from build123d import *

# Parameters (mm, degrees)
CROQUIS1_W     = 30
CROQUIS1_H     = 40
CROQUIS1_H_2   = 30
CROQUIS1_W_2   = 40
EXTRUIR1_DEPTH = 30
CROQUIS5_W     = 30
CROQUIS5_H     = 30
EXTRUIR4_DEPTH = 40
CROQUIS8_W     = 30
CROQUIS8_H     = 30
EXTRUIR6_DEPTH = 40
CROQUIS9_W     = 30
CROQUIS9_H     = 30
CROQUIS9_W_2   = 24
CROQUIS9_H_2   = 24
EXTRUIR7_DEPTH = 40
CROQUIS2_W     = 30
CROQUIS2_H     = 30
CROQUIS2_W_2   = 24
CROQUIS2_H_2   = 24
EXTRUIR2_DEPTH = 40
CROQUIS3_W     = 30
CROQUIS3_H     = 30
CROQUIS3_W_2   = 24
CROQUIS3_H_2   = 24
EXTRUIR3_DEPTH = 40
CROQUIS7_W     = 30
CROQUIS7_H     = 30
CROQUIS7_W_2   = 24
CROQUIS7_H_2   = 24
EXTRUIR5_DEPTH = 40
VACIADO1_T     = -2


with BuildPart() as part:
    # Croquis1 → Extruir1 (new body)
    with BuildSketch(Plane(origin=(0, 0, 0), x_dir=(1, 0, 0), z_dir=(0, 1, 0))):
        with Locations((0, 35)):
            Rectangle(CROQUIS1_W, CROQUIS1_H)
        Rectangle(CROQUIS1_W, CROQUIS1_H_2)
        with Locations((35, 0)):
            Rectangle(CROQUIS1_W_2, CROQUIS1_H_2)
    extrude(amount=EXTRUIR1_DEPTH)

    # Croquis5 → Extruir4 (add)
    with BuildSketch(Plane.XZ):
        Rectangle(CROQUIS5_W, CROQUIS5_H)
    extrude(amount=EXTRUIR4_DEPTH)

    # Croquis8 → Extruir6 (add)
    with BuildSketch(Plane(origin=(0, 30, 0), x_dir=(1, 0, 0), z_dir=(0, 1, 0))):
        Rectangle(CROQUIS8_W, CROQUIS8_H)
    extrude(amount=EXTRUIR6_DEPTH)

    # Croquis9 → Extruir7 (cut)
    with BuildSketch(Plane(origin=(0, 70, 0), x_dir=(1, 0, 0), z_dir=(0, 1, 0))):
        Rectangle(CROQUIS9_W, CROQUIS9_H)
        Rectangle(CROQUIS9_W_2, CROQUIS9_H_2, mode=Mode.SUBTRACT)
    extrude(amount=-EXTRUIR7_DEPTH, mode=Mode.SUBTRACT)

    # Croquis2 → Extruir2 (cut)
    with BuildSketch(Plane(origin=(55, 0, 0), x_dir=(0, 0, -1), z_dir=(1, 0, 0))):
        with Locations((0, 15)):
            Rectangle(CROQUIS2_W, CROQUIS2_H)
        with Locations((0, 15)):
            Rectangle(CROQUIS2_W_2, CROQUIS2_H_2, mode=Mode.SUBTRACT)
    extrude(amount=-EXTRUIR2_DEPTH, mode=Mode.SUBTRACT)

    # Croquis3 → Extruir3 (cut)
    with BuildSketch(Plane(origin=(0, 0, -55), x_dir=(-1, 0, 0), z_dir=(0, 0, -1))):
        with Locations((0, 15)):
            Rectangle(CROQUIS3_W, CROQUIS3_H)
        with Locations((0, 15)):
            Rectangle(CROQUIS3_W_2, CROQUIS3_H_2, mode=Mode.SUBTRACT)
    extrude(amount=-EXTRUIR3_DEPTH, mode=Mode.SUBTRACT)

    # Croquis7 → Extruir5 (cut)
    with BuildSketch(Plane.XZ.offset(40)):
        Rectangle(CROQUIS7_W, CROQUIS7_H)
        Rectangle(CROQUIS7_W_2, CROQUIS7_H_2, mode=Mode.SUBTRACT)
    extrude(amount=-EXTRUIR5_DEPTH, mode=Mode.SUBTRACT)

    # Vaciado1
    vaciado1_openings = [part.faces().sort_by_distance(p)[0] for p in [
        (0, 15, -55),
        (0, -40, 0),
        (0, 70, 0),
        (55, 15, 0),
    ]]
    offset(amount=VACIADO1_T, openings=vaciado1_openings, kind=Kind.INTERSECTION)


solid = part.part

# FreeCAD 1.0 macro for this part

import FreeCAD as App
import Part
import Sketcher
from FreeCAD import Vector
Q = App.Units.Quantity


def faces_at(feature, points):
    """Names of the faces that lie closest to the given points."""
    faces = feature.Shape.Faces
    near = lambda p: min(range(len(faces)), key=lambda i: faces[i].distToShape(Part.Vertex(*p))[0])
    return sorted({f"Face{near(p) + 1}" for p in points})


def add_polygon(sketch, points):
    """Adds a closed chain of lines whose ends are joined by coincident constraints."""
    first, n = sketch.GeometryCount, len(points)
    for a, b in zip(points, points[1:] + points[:1]):
        sketch.addGeometry(Part.LineSegment(App.Vector(*a, 0), App.Vector(*b, 0)), False)
    for i in range(n):
        sketch.addConstraint(Sketcher.Constraint("Coincident", first + i, 2, first + (i + 1) % n, 1))

doc = App.newDocument("Part")
body = doc.addObject("PartDesign::Body", "Body")

sketch1 = body.newObject("Sketcher::SketchObject", "Sketch")
sketch1.AttachmentSupport = (doc.getObject("XZ_Plane"), [""])
sketch1.MapMode = "FlatFace"
add_polygon(sketch1, [(-15, -55), (-15, 15), (55, 15), (55, -15), (15, -15), (15, -55)])
sketch1.addConstraint([
    Sketcher.Constraint("Vertical", 0),
    Sketcher.Constraint("Horizontal", 1),
    Sketcher.Constraint("Vertical", 2),
    Sketcher.Constraint("Horizontal", 3),
    Sketcher.Constraint("Vertical", 4),
    Sketcher.Constraint("Horizontal", 5),
    Sketcher.Constraint("Symmetric", 0, 2, 3, 2, -1, 1),
    Sketcher.Constraint("Equal", 1, 0),
    Sketcher.Constraint("Equal", 5, 2),
    Sketcher.Constraint("DistanceX", 1, 1, 1, 2, Q("70 mm")),
    Sketcher.Constraint("DistanceX", 3, 2, 3, 1, Q("40 mm")),
])
pad1 = body.newObject("PartDesign::Pad", "Pad")
pad1.Profile = sketch1
pad1.Length = 30
pad1.Reversed = True

sketch2 = body.newObject("Sketcher::SketchObject", "Sketch001")
sketch2.AttachmentSupport = (doc.getObject("XZ_Plane"), [""])
sketch2.MapMode = "FlatFace"
add_polygon(sketch2, [(-15, 15), (-15, -15), (15, -15), (15, 15)])
sketch2.addConstraint([
    Sketcher.Constraint("Vertical", 0),
    Sketcher.Constraint("Horizontal", 1),
    Sketcher.Constraint("Vertical", 2),
    Sketcher.Constraint("Horizontal", 3),
    Sketcher.Constraint("Symmetric", 0, 2, 2, 2, -1, 1),
    Sketcher.Constraint("Equal", 3, 0),
    Sketcher.Constraint("DistanceX", 1, 1, 1, 2, Q("30 mm")),
])
pad2 = body.newObject("PartDesign::Pad", "Pad001")
pad2.Profile = sketch2
pad2.Length = 40

sketch3 = body.newObject("Sketcher::SketchObject", "Sketch002")
sketch3.AttachmentSupport = (doc.getObject("XZ_Plane"), [""])
sketch3.MapMode = "FlatFace"
sketch3.AttachmentOffset = App.Placement(Vector(0, 0, -30), App.Rotation())
add_polygon(sketch3, [(-15, -15), (-15, 15), (15, 15), (15, -15)])
sketch3.addConstraint([
    Sketcher.Constraint("Vertical", 0),
    Sketcher.Constraint("Horizontal", 1),
    Sketcher.Constraint("Vertical", 2),
    Sketcher.Constraint("Horizontal", 3),
    Sketcher.Constraint("Symmetric", 0, 2, 2, 2, -1, 1),
    Sketcher.Constraint("Equal", 3, 0),
    Sketcher.Constraint("DistanceX", 1, 1, 1, 2, Q("30 mm")),
])
pad3 = body.newObject("PartDesign::Pad", "Pad002")
pad3.Profile = sketch3
pad3.Length = 40
pad3.Reversed = True

sketch4 = body.newObject("Sketcher::SketchObject", "Sketch003")
sketch4.AttachmentSupport = (doc.getObject("XZ_Plane"), [""])
sketch4.MapMode = "FlatFace"
sketch4.AttachmentOffset = App.Placement(Vector(0, 0, -70), App.Rotation())
add_polygon(sketch4, [(-15, -15), (-15, 15), (15, 15), (15, -15)])
add_polygon(sketch4, [(12, 12), (-12, 12), (-12, -12), (12, -12)])
sketch4.addConstraint([
    Sketcher.Constraint("Vertical", 0),
    Sketcher.Constraint("Horizontal", 1),
    Sketcher.Constraint("Vertical", 2),
    Sketcher.Constraint("Horizontal", 3),
    Sketcher.Constraint("Horizontal", 4),
    Sketcher.Constraint("Vertical", 5),
    Sketcher.Constraint("Horizontal", 6),
    Sketcher.Constraint("Vertical", 7),
    Sketcher.Constraint("Symmetric", 0, 2, 2, 2, -1, 1),
    Sketcher.Constraint("Symmetric", 4, 2, 6, 2, -1, 1),
    Sketcher.Constraint("Equal", 3, 0),
    Sketcher.Constraint("Equal", 6, 5),
    Sketcher.Constraint("DistanceX", 1, 1, 1, 2, Q("30 mm")),
    Sketcher.Constraint("DistanceX", 4, 2, 4, 1, Q("24 mm")),
])
pocket1 = body.newObject("PartDesign::Pocket", "Pocket")
pocket1.Profile = sketch4
pocket1.Length = 40
pocket1.Reversed = True

sketch5 = body.newObject("Sketcher::SketchObject", "Sketch004")
sketch5.AttachmentSupport = (doc.getObject("YZ_Plane"), [""])
sketch5.MapMode = "FlatFace"
sketch5.AttachmentOffset = App.Placement(Vector(0, 0, 55), App.Rotation())
add_polygon(sketch5, [(30, 15), (0, 15), (0, -15), (30, -15)])
add_polygon(sketch5, [(3, -12), (3, 12), (27, 12), (27, -12)])
sketch5.addConstraint([
    Sketcher.Constraint("Horizontal", 0),
    Sketcher.Constraint("Vertical", 1),
    Sketcher.Constraint("Horizontal", 2),
    Sketcher.Constraint("Vertical", 3),
    Sketcher.Constraint("Vertical", 4),
    Sketcher.Constraint("Horizontal", 5),
    Sketcher.Constraint("Vertical", 6),
    Sketcher.Constraint("Horizontal", 7),
    Sketcher.Constraint("Symmetric", 0, 2, 1, 2, -1, 1),
    Sketcher.Constraint("Equal", 2, 1),
    Sketcher.Constraint("Equal", 7, 4),
    Sketcher.Constraint("DistanceX", 0, 2, 0, 1, Q("30 mm")),
    Sketcher.Constraint("DistanceX", 5, 1, 5, 2, Q("24 mm")),
    Sketcher.Constraint("DistanceX", -1, 1, 4, 2, Q("3 mm")),
    Sketcher.Constraint("DistanceY", -1, 1, 4, 2, Q("12 mm")),
])
pocket2 = body.newObject("PartDesign::Pocket", "Pocket001")
pocket2.Profile = sketch5
pocket2.Length = 40

sketch6 = body.newObject("Sketcher::SketchObject", "Sketch005")
sketch6.AttachmentSupport = (doc.getObject("XY_Plane"), [""])
sketch6.MapMode = "FlatFace"
sketch6.AttachmentOffset = App.Placement(Vector(0, 0, -55), App.Rotation())
add_polygon(sketch6, [(15, 30), (15, 0), (-15, 0), (-15, 30)])
add_polygon(sketch6, [(-12, 3), (12, 3), (12, 27), (-12, 27)])
sketch6.addConstraint([
    Sketcher.Constraint("Vertical", 0),
    Sketcher.Constraint("Horizontal", 1),
    Sketcher.Constraint("Vertical", 2),
    Sketcher.Constraint("Horizontal", 3),
    Sketcher.Constraint("Horizontal", 4),
    Sketcher.Constraint("Vertical", 5),
    Sketcher.Constraint("Horizontal", 6),
    Sketcher.Constraint("Vertical", 7),
    Sketcher.Constraint("Symmetric", 0, 2, 1, 2, -1, 1),
    Sketcher.Constraint("Equal", 3, 0),
    Sketcher.Constraint("Equal", 6, 5),
    Sketcher.Constraint("DistanceX", 1, 2, 1, 1, Q("30 mm")),
    Sketcher.Constraint("DistanceX", 4, 1, 4, 2, Q("24 mm")),
    Sketcher.Constraint("DistanceX", -1, 1, 4, 2, Q("12 mm")),
    Sketcher.Constraint("DistanceY", -1, 1, 4, 2, Q("3 mm")),
])
pocket3 = body.newObject("PartDesign::Pocket", "Pocket002")
pocket3.Profile = sketch6
pocket3.Length = 40
pocket3.Reversed = True

sketch7 = body.newObject("Sketcher::SketchObject", "Sketch006")
sketch7.AttachmentSupport = (doc.getObject("XZ_Plane"), [""])
sketch7.MapMode = "FlatFace"
sketch7.AttachmentOffset = App.Placement(Vector(0, 0, 40), App.Rotation())
add_polygon(sketch7, [(-15, 15), (-15, -15), (15, -15), (15, 15)])
add_polygon(sketch7, [(12, -12), (-12, -12), (-12, 12), (12, 12)])
sketch7.addConstraint([
    Sketcher.Constraint("Vertical", 0),
    Sketcher.Constraint("Horizontal", 1),
    Sketcher.Constraint("Vertical", 2),
    Sketcher.Constraint("Horizontal", 3),
    Sketcher.Constraint("Horizontal", 4),
    Sketcher.Constraint("Vertical", 5),
    Sketcher.Constraint("Horizontal", 6),
    Sketcher.Constraint("Vertical", 7),
    Sketcher.Constraint("Symmetric", 0, 2, 2, 2, -1, 1),
    Sketcher.Constraint("Symmetric", 4, 2, 6, 2, -1, 1),
    Sketcher.Constraint("Equal", 3, 0),
    Sketcher.Constraint("Equal", 6, 5),
    Sketcher.Constraint("DistanceX", 1, 1, 1, 2, Q("30 mm")),
    Sketcher.Constraint("DistanceX", 4, 2, 4, 1, Q("24 mm")),
])
pocket4 = body.newObject("PartDesign::Pocket", "Pocket003")
pocket4.Profile = sketch7
pocket4.Length = 40
doc.recompute()

thickness = body.newObject("PartDesign::Thickness", "Thickness")
thickness.Base = (pocket4, faces_at(pocket4, [
    (0, 15, -55),
    (0, -40, 0),
    (0, 70, 0),
    (55, 15, 0),
]))
thickness.Value = 2
thickness.Reversed = True
thickness.Join = "Intersection"

doc.recompute()
